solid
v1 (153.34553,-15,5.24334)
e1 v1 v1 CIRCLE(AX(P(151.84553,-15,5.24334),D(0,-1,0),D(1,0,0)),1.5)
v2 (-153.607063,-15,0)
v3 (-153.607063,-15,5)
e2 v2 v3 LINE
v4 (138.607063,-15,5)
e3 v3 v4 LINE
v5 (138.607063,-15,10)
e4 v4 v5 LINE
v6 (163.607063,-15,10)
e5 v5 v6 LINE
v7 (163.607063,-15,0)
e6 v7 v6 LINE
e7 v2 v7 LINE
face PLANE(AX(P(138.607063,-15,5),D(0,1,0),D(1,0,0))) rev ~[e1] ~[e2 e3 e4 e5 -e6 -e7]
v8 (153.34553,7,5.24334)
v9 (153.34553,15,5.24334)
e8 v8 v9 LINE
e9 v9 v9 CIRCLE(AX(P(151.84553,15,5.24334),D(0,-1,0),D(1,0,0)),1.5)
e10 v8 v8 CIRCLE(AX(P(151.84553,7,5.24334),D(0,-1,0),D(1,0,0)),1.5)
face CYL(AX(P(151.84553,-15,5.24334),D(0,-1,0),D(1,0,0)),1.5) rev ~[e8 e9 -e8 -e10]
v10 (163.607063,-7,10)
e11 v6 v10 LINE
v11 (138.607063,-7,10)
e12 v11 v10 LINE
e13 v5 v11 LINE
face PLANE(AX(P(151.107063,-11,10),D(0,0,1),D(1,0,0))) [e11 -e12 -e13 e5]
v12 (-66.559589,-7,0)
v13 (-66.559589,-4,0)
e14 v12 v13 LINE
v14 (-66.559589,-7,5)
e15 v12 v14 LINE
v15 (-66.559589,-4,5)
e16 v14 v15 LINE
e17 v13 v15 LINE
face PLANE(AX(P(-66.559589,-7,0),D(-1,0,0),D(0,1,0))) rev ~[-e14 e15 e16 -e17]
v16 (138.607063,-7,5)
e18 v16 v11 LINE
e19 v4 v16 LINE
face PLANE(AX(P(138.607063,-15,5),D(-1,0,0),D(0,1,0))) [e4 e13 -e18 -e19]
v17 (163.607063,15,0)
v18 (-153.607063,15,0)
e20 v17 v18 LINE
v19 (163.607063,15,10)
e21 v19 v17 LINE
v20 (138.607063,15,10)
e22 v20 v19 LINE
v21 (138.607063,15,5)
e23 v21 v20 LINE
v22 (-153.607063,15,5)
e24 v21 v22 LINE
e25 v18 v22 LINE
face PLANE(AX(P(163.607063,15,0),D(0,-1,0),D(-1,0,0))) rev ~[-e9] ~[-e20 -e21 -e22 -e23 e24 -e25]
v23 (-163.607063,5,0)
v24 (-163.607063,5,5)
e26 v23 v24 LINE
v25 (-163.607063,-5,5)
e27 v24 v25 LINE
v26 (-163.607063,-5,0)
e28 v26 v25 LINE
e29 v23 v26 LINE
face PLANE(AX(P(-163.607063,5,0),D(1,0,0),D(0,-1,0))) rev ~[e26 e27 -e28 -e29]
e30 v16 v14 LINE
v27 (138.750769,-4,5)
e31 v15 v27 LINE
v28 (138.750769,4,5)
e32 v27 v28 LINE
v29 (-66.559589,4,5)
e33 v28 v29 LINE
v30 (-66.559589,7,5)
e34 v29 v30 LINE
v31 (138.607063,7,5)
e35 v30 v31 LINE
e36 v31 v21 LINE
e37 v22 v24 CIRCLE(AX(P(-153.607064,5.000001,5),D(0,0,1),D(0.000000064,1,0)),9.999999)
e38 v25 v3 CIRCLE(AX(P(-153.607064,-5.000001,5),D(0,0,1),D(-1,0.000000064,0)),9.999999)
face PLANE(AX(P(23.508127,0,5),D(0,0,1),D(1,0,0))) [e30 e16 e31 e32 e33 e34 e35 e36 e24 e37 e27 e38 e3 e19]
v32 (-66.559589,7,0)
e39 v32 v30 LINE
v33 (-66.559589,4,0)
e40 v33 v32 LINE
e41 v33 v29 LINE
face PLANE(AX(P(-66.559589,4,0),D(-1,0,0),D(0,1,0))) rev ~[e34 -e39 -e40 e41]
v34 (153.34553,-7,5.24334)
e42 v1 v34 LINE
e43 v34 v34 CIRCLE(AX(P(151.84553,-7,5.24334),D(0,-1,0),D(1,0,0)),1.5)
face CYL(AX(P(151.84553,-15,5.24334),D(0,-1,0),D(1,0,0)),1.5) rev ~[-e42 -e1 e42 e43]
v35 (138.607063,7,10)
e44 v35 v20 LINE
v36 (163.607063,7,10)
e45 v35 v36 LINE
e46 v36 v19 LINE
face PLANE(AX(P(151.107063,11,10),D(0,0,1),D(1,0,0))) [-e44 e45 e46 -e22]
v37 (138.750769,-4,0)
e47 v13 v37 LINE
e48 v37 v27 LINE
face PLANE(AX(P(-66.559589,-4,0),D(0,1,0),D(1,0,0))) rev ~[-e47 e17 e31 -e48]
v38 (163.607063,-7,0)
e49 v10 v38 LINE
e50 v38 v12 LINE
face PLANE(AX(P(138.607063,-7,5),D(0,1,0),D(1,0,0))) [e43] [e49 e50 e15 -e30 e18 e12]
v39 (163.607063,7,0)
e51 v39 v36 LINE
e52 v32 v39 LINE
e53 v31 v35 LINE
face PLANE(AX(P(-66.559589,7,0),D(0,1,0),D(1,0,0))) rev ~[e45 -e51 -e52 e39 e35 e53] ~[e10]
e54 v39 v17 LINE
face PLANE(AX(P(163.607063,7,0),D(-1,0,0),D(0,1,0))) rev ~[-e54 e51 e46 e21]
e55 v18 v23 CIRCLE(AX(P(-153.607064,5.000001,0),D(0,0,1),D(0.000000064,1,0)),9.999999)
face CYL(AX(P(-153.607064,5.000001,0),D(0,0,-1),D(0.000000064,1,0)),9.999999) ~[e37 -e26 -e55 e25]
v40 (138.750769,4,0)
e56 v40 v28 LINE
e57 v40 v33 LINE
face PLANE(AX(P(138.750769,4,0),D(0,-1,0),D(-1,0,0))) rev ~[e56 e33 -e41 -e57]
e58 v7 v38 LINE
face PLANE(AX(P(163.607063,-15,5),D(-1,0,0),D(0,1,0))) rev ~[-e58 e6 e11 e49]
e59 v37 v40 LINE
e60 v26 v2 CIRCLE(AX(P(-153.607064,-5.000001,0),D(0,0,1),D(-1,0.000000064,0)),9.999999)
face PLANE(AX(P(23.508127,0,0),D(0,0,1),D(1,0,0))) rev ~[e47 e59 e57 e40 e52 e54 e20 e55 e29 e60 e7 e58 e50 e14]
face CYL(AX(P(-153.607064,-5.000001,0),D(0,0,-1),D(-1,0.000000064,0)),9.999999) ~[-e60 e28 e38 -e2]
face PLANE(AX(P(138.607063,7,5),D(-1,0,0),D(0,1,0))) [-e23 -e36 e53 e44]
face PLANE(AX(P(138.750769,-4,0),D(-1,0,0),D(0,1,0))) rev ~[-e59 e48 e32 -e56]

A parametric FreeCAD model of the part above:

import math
import FreeCAD as App
import Part
import Sketcher

doc = App.newDocument("Part")
params = doc.addObject("Spreadsheet::Sheet", "Params")
for row, (alias, value) in enumerate([
    ("sketch1_radius", "9.999999 mm"),
    ("sketch1_height", "8 mm"),
    ("sketch1_height2", "3 mm"),
    ("pad1_length", "5 mm"),
    ("sketch2_width", "25 mm"),
    ("sketch2_height", "8 mm"),
    ("pad2_length", "5 mm"),
    ("sketch3_diameter", "3 mm"),
    ("pocket1_length", "30.3 mm"),
], start=1):
    params.set(f"A{row}", alias)
    params.set(f"B{row}", "=" + value)
    params.setAlias(f"B{row}", alias)

body = doc.addObject("PartDesign::Body", "Body")

sketch1 = body.newObject("Sketcher::SketchObject", "Sketch")
sketch1.AttachmentSupport = (doc.getObject("XY_Plane"), [""])
sketch1.MapMode = "FlatFace"
sketch1.addGeometry(Part.LineSegment(App.Vector(-153.6, -15, 0), App.Vector(163.6, -15, 0)), False)
sketch1.addGeometry(Part.LineSegment(App.Vector(163.6, -15, 0), App.Vector(163.6, -7, 0)), False)
sketch1.addGeometry(Part.LineSegment(App.Vector(163.6, -7, 0), App.Vector(-66.6, -7, 0)), False)
sketch1.addGeometry(Part.LineSegment(App.Vector(-66.6, -7, 0), App.Vector(-66.6, -4, 0)), False)
sketch1.addGeometry(Part.LineSegment(App.Vector(-66.6, -4, 0), App.Vector(138.8, -4, 0)), False)
sketch1.addGeometry(Part.LineSegment(App.Vector(138.8, -4, 0), App.Vector(138.8, 4, 0)), False)
sketch1.addGeometry(Part.LineSegment(App.Vector(138.8, 4, 0), App.Vector(-66.6, 4, 0)), False)
sketch1.addGeometry(Part.LineSegment(App.Vector(-66.6, 4, 0), App.Vector(-66.6, 7, 0)), False)
sketch1.addGeometry(Part.LineSegment(App.Vector(-66.6, 7, 0), App.Vector(163.6, 7, 0)), False)
sketch1.addGeometry(Part.LineSegment(App.Vector(163.6, 7, 0), App.Vector(163.6, 15, 0)), False)
sketch1.addGeometry(Part.LineSegment(App.Vector(163.6, 15, 0), App.Vector(-153.6, 15, 0)), False)
sketch1.addGeometry(Part.ArcOfCircle(Part.Circle(App.Vector(-153.6, 5, 0), App.Vector(0, 0, 1), 10), math.radians(90), math.radians(180)), False)
sketch1.addGeometry(Part.LineSegment(App.Vector(-163.6, 5, 0), App.Vector(-163.6, -5, 0)), False)
sketch1.addGeometry(Part.ArcOfCircle(Part.Circle(App.Vector(-153.6, -5, 0), App.Vector(0, 0, 1), 10), math.radians(180), math.radians(270)), False)
sketch1.addConstraint(Sketcher.Constraint("Coincident", 0, 2, 1, 1))
sketch1.addConstraint(Sketcher.Constraint("Coincident", 1, 2, 2, 1))
sketch1.addConstraint(Sketcher.Constraint("Coincident", 2, 2, 3, 1))
sketch1.addConstraint(Sketcher.Constraint("Coincident", 3, 2, 4, 1))
sketch1.addConstraint(Sketcher.Constraint("Coincident", 4, 2, 5, 1))
sketch1.addConstraint(Sketcher.Constraint("Coincident", 5, 2, 6, 1))
sketch1.addConstraint(Sketcher.Constraint("Coincident", 6, 2, 7, 1))
sketch1.addConstraint(Sketcher.Constraint("Coincident", 7, 2, 8, 1))
sketch1.addConstraint(Sketcher.Constraint("Coincident", 8, 2, 9, 1))
sketch1.addConstraint(Sketcher.Constraint("Coincident", 9, 2, 10, 1))
sketch1.addConstraint(Sketcher.Constraint("Tangent", 10, 2, 11, 1))
sketch1.addConstraint(Sketcher.Constraint("Tangent", 11, 2, 12, 1))
sketch1.addConstraint(Sketcher.Constraint("Tangent", 12, 2, 13, 1))
sketch1.addConstraint(Sketcher.Constraint("Tangent", 13, 2, 0, 1))
sketch1.addConstraint(Sketcher.Constraint("Horizontal", 0))
sketch1.addConstraint(Sketcher.Constraint("Vertical", 1))
sketch1.addConstraint(Sketcher.Constraint("Horizontal", 2))
sketch1.addConstraint(Sketcher.Constraint("Vertical", 3))
sketch1.addConstraint(Sketcher.Constraint("Horizontal", 4))
sketch1.addConstraint(Sketcher.Constraint("Vertical", 5))
sketch1.addConstraint(Sketcher.Constraint("Horizontal", 6))
sketch1.addConstraint(Sketcher.Constraint("Vertical", 7))
sketch1.addConstraint(Sketcher.Constraint("Horizontal", 8))
sketch1.addConstraint(Sketcher.Constraint("Vertical", 9))
sketch1.addConstraint(Sketcher.Constraint("Horizontal", 10))
sketch1.addConstraint(Sketcher.Constraint("Vertical", 12))
sketch1.addConstraint(Sketcher.Constraint("Equal", 11, 13))
sketch1.addConstraint(Sketcher.Constraint("Symmetric", 3, 2, 6, 2, -1))
sketch1.addConstraint(Sketcher.Constraint("Symmetric", 1, 2, 8, 2, -1))
sketch1.addConstraint(Sketcher.Constraint("Equal", 1, 5))
sketch1.addConstraint(Sketcher.Constraint("Equal", 5, 9))
sketch1.addConstraint(Sketcher.Constraint("Radius", 11, 9.999999))
sketch1.addConstraint(Sketcher.Constraint("DistanceY", 1, 1, 1, 2, 8.0))
sketch1.addConstraint(Sketcher.Constraint("DistanceY", 3, 1, 3, 2, 3.0))
sketch1.addConstraint(Sketcher.Constraint("DistanceX", 2, 2, 2, 1, 230.166652))
sketch1.addConstraint(Sketcher.Constraint("DistanceX", 4, 1, 4, 2, 205.310358))
sketch1.addConstraint(Sketcher.Constraint("DistanceX", 0, 1, 0, 2, 317.214126))
sketch1.addConstraint(Sketcher.Constraint("DistanceX", 2, 2, -1, 1, 66.559589))
sketch1.setExpression("Constraints[31]", "Params.sketch1_radius")
sketch1.setExpression("Constraints[32]", "Params.sketch1_height")
sketch1.setExpression("Constraints[33]", "Params.sketch1_height2")
pad1 = body.newObject("PartDesign::Pad", "Pad")
pad1.Profile = sketch1
pad1.setExpression("Length", "Params.pad1_length")

sketch2 = body.newObject("Sketcher::SketchObject", "Sketch001")
sketch2.AttachmentSupport = (doc.getObject("XY_Plane"), [""])
sketch2.MapMode = "FlatFace"
sketch2.AttachmentOffset = App.Placement(App.Vector(0, 0, 5), App.Rotation())
sketch2.addGeometry(Part.LineSegment(App.Vector(139, -7, 0), App.Vector(139, -15, 0)), False)
sketch2.addGeometry(Part.LineSegment(App.Vector(139, -15, 0), App.Vector(164, -15, 0)), False)
sketch2.addGeometry(Part.LineSegment(App.Vector(164, -15, 0), App.Vector(164, -7, 0)), False)
sketch2.addGeometry(Part.LineSegment(App.Vector(164, -7, 0), App.Vector(139, -7, 0)), False)
sketch2.addGeometry(Part.LineSegment(App.Vector(139, 15, 0), App.Vector(139, 7, 0)), False)
sketch2.addGeometry(Part.LineSegment(App.Vector(139, 7, 0), App.Vector(164, 7, 0)), False)
sketch2.addGeometry(Part.LineSegment(App.Vector(164, 7, 0), App.Vector(164, 15, 0)), False)
sketch2.addGeometry(Part.LineSegment(App.Vector(164, 15, 0), App.Vector(139, 15, 0)), False)
sketch2.addConstraint(Sketcher.Constraint("Coincident", 0, 2, 1, 1))
sketch2.addConstraint(Sketcher.Constraint("Coincident", 1, 2, 2, 1))
sketch2.addConstraint(Sketcher.Constraint("Coincident", 2, 2, 3, 1))
sketch2.addConstraint(Sketcher.Constraint("Coincident", 3, 2, 0, 1))
sketch2.addConstraint(Sketcher.Constraint("Coincident", 4, 2, 5, 1))
sketch2.addConstraint(Sketcher.Constraint("Coincident", 5, 2, 6, 1))
sketch2.addConstraint(Sketcher.Constraint("Coincident", 6, 2, 7, 1))
sketch2.addConstraint(Sketcher.Constraint("Coincident", 7, 2, 4, 1))
sketch2.addConstraint(Sketcher.Constraint("Vertical", 0))
sketch2.addConstraint(Sketcher.Constraint("Horizontal", 1))
sketch2.addConstraint(Sketcher.Constraint("Vertical", 2))
sketch2.addConstraint(Sketcher.Constraint("Horizontal", 3))
sketch2.addConstraint(Sketcher.Constraint("Vertical", 4))
sketch2.addConstraint(Sketcher.Constraint("Horizontal", 5))
sketch2.addConstraint(Sketcher.Constraint("Vertical", 6))
sketch2.addConstraint(Sketcher.Constraint("Horizontal", 7))
sketch2.addConstraint(Sketcher.Constraint("Symmetric", 3, 2, 4, 2, -1))
sketch2.addConstraint(Sketcher.Constraint("Symmetric", 1, 2, 6, 2, -1))
sketch2.addConstraint(Sketcher.Constraint("DistanceX", 1, 1, 1, 2, 25.0))
sketch2.addConstraint(Sketcher.Constraint("DistanceY", 0, 2, 0, 1, 8.0))
sketch2.addConstraint(Sketcher.Constraint("DistanceY", 0, 2, -1, 1, 15.0))
sketch2.addConstraint(Sketcher.Constraint("DistanceX", -1, 1, 0, 2, 138.607063))
sketch2.setExpression("Constraints[18]", "Params.sketch2_width")
sketch2.setExpression("Constraints[19]", "Params.sketch2_height")
pad2 = body.newObject("PartDesign::Pad", "Pad001")
pad2.Profile = sketch2
pad2.setExpression("Length", "Params.pad2_length")

sketch3 = body.newObject("Sketcher::SketchObject", "Sketch002")
sketch3.AttachmentSupport = (doc.getObject("XZ_Plane"), [""])
sketch3.MapMode = "FlatFace"
sketch3.AttachmentOffset = App.Placement(App.Vector(0, 0, 15), App.Rotation())
sketch3.addGeometry(Part.Circle(App.Vector(151.8, 5.2, 0), App.Vector(0, 0, 1), 1.5), False)
sketch3.addConstraint(Sketcher.Constraint("Diameter", 0, 3.0))
sketch3.addConstraint(Sketcher.Constraint("DistanceX", -1, 1, 0, 3, 151.84553))
sketch3.addConstraint(Sketcher.Constraint("DistanceY", -1, 1, 0, 3, 5.24334))
sketch3.setExpression("Constraints[0]", "Params.sketch3_diameter")
pocket1 = body.newObject("PartDesign::Pocket", "Pocket")
pocket1.Profile = sketch3
pocket1.setExpression("Length", "Params.pocket1_length")

doc.recompute()
